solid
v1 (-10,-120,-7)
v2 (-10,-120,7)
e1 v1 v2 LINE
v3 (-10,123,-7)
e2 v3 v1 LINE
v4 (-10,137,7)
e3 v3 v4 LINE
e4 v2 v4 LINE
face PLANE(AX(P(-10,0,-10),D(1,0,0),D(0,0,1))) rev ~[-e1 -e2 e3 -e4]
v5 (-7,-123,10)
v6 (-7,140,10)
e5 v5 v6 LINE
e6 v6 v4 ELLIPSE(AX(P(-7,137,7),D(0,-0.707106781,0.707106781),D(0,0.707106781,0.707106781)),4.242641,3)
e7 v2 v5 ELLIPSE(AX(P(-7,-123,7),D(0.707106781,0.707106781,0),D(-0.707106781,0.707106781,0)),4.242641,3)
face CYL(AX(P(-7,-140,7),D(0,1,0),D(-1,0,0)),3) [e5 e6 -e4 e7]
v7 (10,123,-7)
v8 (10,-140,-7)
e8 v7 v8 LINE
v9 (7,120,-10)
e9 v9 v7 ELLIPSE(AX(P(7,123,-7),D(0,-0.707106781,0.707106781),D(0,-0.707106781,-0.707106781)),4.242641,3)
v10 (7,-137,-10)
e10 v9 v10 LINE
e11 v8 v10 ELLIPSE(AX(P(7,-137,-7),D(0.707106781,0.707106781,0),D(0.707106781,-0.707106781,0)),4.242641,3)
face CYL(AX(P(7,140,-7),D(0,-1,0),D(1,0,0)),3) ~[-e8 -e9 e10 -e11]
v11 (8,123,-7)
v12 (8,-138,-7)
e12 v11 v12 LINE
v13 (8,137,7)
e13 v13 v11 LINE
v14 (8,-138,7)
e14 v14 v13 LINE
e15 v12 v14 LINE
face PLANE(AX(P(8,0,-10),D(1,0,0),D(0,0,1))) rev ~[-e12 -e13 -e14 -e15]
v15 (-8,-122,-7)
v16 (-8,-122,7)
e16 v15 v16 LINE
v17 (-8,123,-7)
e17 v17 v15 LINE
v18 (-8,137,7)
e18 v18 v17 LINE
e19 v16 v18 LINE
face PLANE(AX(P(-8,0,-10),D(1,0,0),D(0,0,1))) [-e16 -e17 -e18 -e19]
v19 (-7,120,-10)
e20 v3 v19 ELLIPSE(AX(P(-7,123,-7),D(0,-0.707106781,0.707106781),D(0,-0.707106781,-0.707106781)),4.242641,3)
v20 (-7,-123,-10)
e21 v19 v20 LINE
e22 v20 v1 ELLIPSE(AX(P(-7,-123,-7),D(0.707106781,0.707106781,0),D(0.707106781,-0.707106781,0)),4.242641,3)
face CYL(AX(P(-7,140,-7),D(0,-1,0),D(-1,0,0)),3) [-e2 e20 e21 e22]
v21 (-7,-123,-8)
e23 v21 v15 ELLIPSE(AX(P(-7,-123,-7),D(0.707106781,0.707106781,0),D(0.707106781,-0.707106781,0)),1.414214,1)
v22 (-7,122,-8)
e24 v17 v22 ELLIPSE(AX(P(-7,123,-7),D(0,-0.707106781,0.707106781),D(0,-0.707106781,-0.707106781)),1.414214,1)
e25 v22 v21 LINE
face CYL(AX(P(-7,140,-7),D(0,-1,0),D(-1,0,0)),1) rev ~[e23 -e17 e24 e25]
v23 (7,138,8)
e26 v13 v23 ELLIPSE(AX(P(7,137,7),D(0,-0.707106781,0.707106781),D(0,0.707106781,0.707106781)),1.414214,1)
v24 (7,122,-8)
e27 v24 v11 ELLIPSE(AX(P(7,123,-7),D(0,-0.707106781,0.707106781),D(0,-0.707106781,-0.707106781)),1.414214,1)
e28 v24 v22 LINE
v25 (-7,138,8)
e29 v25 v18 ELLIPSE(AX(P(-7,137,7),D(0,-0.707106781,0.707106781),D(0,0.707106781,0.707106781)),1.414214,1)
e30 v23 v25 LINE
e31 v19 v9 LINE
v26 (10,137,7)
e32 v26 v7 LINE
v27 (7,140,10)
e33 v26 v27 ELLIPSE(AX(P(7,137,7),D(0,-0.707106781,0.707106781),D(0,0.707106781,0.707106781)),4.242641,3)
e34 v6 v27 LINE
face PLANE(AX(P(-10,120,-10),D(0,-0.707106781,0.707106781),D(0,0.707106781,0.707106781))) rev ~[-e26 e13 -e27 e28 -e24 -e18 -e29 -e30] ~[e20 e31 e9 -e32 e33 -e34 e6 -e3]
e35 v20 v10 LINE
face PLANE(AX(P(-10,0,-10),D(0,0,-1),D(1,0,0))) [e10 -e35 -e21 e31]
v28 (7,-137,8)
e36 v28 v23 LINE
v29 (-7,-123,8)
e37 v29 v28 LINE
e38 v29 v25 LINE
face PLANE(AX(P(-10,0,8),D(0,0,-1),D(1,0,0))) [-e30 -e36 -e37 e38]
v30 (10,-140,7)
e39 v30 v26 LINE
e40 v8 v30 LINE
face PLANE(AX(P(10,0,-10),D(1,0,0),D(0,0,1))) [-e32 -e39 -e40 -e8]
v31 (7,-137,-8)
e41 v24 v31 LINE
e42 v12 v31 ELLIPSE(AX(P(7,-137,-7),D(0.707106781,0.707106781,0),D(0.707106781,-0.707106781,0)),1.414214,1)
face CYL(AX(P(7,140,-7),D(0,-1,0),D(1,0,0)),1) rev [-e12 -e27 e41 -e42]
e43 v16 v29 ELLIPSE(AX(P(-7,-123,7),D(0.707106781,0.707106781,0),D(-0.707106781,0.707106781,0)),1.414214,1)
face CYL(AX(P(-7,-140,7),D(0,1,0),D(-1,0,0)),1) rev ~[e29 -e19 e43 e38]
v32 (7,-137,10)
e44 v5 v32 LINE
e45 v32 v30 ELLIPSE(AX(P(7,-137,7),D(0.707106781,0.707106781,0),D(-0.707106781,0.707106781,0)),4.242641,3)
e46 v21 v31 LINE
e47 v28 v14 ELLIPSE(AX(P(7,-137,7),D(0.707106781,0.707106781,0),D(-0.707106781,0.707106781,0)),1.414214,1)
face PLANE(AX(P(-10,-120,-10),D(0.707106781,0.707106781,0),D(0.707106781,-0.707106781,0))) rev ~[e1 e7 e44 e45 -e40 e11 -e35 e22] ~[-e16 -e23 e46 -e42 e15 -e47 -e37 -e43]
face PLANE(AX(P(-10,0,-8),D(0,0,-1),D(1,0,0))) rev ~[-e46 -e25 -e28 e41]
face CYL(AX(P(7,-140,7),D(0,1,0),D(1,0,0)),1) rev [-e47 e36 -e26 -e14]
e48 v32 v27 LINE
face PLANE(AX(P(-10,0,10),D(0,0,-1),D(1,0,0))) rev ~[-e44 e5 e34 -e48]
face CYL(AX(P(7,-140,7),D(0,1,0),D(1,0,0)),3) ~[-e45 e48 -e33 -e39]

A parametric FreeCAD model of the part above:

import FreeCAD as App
import Part
import Sketcher

V = App.Vector
Q = App.Units.Quantity


def edges_at(feature, points):
    """Names of the edges that pass closest to the given points."""
    edges = feature.Shape.Edges
    near = lambda p: min(range(len(edges)), key=lambda i: edges[i].distToShape(Part.Vertex(*p))[0])
    return sorted({f"Edge{near(p) + 1}" for p in points})


def faces_at(feature, points):
    """Names of the faces that lie closest to the given points."""
    faces = feature.Shape.Faces
    near = lambda p: min(range(len(faces)), key=lambda i: faces[i].distToShape(Part.Vertex(*p))[0])
    return sorted({f"Face{near(p) + 1}" for p in points})

doc = App.newDocument("Part")
body = doc.addObject("PartDesign::Body", "Body")

# Sketch on XZ plane
sketch1 = body.newObject("Sketcher::SketchObject", "Sketch")
sketch1.AttachmentSupport = (doc.getObject("XZ_Plane"), [""])
sketch1.MapMode = "FlatFace"
sketch1.addGeometry(Part.LineSegment(V(-10, 10, 0), V(-10, -10, 0)), False)
sketch1.addGeometry(Part.LineSegment(V(-10, -10, 0), V(10, -10, 0)), False)
sketch1.addGeometry(Part.LineSegment(V(10, -10, 0), V(10, 10, 0)), False)
sketch1.addGeometry(Part.LineSegment(V(10, 10, 0), V(-10, 10, 0)), False)
sketch1.addConstraint(Sketcher.Constraint("Coincident", 0, 2, 1, 1))
sketch1.addConstraint(Sketcher.Constraint("Coincident", 1, 2, 2, 1))
sketch1.addConstraint(Sketcher.Constraint("Coincident", 2, 2, 3, 1))
sketch1.addConstraint(Sketcher.Constraint("Coincident", 3, 2, 0, 1))
sketch1.addConstraint(Sketcher.Constraint("Vertical", 0))
sketch1.addConstraint(Sketcher.Constraint("Horizontal", 1))
sketch1.addConstraint(Sketcher.Constraint("Vertical", 2))
sketch1.addConstraint(Sketcher.Constraint("Horizontal", 3))
sketch1.addConstraint(Sketcher.Constraint("Symmetric", 0, 2, 2, 2, -1, 1))
sketch1.addConstraint(Sketcher.Constraint("Equal", 3, 0))
sketch1.addConstraint(Sketcher.Constraint("DistanceX", 1, 1, 1, 2, Q("20 mm")))
pad1 = body.newObject("PartDesign::Pad", "Pad")
pad1.Profile = sketch1
pad1.Length = 280
pad1.Midplane = True
doc.recompute()

fillet = body.newObject("PartDesign::Fillet", "Fillet")
fillet.Base = (pad1, edges_at(pad1, [
    (10, 0, 10),
    (-10, 0, 10),
    (10, 0, -10),
    (-10, 0, -10),
]))
fillet.Radius = 3
doc.recompute()

thickness = body.newObject("PartDesign::Thickness", "Thickness")
thickness.Base = (fillet, faces_at(fillet, [(0, -140, 0), (0, 140, 0)]))
thickness.Value = 2
thickness.Reversed = True
thickness.Join = "Arc"

# Sketch on YZ plane
sketch2 = body.newObject("Sketcher::SketchObject", "Sketch001")
sketch2.AttachmentSupport = (doc.getObject("YZ_Plane"), [""])
sketch2.MapMode = "FlatFace"
sketch2.AttachmentOffset = App.Placement(V(0, 0, -10), App.Rotation())
sketch2.addGeometry(Part.LineSegment(V(140, 10, 0), V(140, -10, 0)), False)
sketch2.addGeometry(Part.LineSegment(V(140, -10, 0), V(120, -10, 0)), False)
sketch2.addGeometry(Part.LineSegment(V(120, -10, 0), V(140, 10, 0)), False)
sketch2.addConstraint(Sketcher.Constraint("Coincident", 0, 2, 1, 1))
sketch2.addConstraint(Sketcher.Constraint("Coincident", 1, 2, 2, 1))
sketch2.addConstraint(Sketcher.Constraint("Coincident", 2, 2, 0, 1))
sketch2.addConstraint(Sketcher.Constraint("Vertical", 0))
sketch2.addConstraint(Sketcher.Constraint("Horizontal", 1))
sketch2.addConstraint(Sketcher.Constraint("Equal", 1, 0))
sketch2.addConstraint(Sketcher.Constraint("DistanceX", 1, 2, 1, 1, Q("20 mm")))
sketch2.addConstraint(Sketcher.Constraint("DistanceX", -1, 1, 0, 2, Q("140 mm")))
sketch2.addConstraint(Sketcher.Constraint("DistanceY", 0, 2, -1, 1, Q("10 mm")))
pocket1 = body.newObject("PartDesign::Pocket", "Pocket")
pocket1.Profile = sketch2
pocket1.Type = "ThroughAll"
pocket1.Reversed = True

# Sketch on XY plane
sketch3 = body.newObject("Sketcher::SketchObject", "Sketch002")
sketch3.AttachmentSupport = (doc.getObject("XY_Plane"), [""])
sketch3.MapMode = "FlatFace"
sketch3.AttachmentOffset = App.Placement(V(0, 0, -10), App.Rotation())
sketch3.addGeometry(Part.LineSegment(V(-10, -140, 0), V(-10, -120, 0)), False)
sketch3.addGeometry(Part.LineSegment(V(-10, -120, 0), V(10, -140, 0)), False)
sketch3.addGeometry(Part.LineSegment(V(10, -140, 0), V(-10, -140, 0)), False)
sketch3.addConstraint(Sketcher.Constraint("Coincident", 0, 2, 1, 1))
sketch3.addConstraint(Sketcher.Constraint("Coincident", 1, 2, 2, 1))
sketch3.addConstraint(Sketcher.Constraint("Coincident", 2, 2, 0, 1))
sketch3.addConstraint(Sketcher.Constraint("Vertical", 0))
sketch3.addConstraint(Sketcher.Constraint("Horizontal", 2))
sketch3.addConstraint(Sketcher.Constraint("Equal", 2, 0))
sketch3.addConstraint(Sketcher.Constraint("DistanceX", 2, 2, 2, 1, Q("20 mm")))
sketch3.addConstraint(Sketcher.Constraint("DistanceX", 0, 2, -1, 1, Q("10 mm")))
sketch3.addConstraint(Sketcher.Constraint("DistanceY", 0, 2, -1, 1, Q("120 mm")))
pocket2 = body.newObject("PartDesign::Pocket", "Pocket001")
pocket2.Profile = sketch3
pocket2.Type = "ThroughAll"
pocket2.Reversed = True

doc.recompute()
